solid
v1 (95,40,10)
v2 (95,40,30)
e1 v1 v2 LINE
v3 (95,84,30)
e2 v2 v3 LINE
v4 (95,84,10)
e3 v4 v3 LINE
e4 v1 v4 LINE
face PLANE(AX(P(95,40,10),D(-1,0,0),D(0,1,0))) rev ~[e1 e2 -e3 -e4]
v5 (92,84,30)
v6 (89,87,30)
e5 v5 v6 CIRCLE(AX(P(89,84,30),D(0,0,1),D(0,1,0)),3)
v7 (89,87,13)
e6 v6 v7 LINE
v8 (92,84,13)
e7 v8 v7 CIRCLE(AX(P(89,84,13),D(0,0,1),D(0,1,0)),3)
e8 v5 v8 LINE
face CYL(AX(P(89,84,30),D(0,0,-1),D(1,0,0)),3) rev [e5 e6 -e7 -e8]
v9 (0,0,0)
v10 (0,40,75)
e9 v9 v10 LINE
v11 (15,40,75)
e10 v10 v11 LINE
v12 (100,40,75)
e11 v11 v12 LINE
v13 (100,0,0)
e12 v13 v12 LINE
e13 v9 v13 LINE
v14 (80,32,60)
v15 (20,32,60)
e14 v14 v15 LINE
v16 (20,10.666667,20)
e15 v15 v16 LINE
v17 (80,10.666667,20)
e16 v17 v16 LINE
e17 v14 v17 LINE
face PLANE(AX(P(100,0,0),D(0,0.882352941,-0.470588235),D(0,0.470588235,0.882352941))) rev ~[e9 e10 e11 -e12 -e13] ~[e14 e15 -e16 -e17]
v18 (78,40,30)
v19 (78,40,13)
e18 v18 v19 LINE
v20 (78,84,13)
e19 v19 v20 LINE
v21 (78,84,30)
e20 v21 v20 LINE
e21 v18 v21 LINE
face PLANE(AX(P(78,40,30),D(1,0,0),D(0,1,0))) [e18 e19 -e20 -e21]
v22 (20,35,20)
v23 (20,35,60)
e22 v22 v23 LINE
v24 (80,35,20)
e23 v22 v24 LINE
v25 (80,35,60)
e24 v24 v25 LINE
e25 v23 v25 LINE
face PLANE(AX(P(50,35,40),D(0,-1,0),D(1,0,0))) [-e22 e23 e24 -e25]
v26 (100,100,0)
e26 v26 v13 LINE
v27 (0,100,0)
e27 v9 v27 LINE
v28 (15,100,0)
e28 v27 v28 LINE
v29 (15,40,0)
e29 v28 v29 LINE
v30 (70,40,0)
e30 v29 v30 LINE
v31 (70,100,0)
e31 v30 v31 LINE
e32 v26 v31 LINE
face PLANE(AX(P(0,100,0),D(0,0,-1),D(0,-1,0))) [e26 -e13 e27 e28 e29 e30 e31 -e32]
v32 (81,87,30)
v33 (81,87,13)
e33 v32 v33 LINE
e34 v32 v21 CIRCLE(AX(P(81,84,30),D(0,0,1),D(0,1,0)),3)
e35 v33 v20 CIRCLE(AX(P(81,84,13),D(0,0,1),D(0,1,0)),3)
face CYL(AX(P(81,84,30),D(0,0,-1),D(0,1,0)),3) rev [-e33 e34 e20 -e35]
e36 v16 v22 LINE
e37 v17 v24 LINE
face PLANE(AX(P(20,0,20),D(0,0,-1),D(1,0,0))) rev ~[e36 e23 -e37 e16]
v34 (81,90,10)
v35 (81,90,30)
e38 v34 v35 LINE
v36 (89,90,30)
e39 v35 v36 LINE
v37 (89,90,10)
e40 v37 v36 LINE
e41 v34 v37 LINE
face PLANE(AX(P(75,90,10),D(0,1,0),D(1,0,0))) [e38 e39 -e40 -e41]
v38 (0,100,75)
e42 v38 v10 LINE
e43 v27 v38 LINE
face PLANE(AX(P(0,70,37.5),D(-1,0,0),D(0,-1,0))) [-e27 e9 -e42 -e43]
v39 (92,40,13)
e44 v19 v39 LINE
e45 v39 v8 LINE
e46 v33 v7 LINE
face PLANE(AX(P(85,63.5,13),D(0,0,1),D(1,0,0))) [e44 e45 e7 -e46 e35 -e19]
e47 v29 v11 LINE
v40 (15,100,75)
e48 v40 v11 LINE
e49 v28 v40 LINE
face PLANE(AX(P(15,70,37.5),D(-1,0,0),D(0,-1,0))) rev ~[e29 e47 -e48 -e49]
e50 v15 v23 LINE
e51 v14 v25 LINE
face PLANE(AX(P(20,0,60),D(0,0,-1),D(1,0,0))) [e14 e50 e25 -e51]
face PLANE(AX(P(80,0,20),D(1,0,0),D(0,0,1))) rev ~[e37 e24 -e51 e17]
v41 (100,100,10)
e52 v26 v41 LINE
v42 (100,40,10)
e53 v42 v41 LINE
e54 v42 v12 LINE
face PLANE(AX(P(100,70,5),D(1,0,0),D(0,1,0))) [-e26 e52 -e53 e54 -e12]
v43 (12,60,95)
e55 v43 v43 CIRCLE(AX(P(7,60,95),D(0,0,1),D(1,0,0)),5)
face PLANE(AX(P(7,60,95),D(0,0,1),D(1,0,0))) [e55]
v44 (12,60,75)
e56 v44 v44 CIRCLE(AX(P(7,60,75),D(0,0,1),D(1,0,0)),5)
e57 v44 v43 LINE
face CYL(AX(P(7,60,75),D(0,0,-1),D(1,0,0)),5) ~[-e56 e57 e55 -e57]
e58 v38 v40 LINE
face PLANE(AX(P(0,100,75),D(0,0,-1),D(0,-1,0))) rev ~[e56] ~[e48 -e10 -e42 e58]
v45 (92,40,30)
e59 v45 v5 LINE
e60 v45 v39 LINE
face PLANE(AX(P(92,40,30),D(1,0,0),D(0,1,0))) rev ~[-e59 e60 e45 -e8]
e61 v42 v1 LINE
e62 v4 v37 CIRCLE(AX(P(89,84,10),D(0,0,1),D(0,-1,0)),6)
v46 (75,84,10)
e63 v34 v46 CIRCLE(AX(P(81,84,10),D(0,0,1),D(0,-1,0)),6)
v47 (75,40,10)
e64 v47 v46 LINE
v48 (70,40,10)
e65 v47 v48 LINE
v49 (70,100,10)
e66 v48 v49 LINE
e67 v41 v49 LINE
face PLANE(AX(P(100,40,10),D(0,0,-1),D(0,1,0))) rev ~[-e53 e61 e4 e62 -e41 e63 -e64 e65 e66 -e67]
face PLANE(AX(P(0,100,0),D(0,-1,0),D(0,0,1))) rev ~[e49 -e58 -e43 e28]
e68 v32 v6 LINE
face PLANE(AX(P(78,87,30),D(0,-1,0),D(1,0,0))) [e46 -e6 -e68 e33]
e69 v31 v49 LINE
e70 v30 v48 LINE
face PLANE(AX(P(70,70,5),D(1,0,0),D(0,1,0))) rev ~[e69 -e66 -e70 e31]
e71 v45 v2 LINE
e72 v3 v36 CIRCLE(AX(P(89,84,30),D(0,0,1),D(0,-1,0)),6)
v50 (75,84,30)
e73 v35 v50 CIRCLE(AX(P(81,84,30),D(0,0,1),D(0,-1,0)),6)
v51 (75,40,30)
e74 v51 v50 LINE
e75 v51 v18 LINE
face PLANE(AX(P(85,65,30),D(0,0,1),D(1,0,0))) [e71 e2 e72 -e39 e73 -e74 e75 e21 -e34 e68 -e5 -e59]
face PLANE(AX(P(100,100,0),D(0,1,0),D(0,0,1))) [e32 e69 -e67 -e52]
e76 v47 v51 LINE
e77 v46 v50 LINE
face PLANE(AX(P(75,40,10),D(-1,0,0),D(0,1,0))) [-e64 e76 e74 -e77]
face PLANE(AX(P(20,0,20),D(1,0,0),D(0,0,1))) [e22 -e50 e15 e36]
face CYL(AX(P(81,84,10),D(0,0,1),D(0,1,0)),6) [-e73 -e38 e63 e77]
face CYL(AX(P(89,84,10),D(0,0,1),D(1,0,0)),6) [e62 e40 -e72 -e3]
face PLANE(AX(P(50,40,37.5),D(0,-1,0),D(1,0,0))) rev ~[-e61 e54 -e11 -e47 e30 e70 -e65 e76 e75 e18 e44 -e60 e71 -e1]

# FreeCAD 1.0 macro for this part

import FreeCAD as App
import Part
import Sketcher

V = App.Vector
Q = App.Units.Quantity


def edges_at(feature, points):
    """Names of the edges that pass closest to the given points."""
    edges = feature.Shape.Edges
    near = lambda p: min(range(len(edges)), key=lambda i: edges[i].distToShape(Part.Vertex(*p))[0])
    return sorted({f"Edge{near(p) + 1}" for p in points})

doc = App.newDocument("Part")
body = doc.addObject("PartDesign::Body", "Body")

sketch1 = body.newObject("Sketcher::SketchObject", "Sketch")
sketch1.AttachmentSupport = (doc.getObject("XZ_Plane"), [""])
sketch1.MapMode = "FlatFace"
sketch1.addGeometry([
    Part.LineSegment(V(0, 75, 0), V(0, 0, 0)),
    Part.LineSegment(V(0, 0, 0), V(100, 0, 0)),
    Part.LineSegment(V(100, 0, 0), V(100, 75, 0)),
    Part.LineSegment(V(100, 75, 0), V(0, 75, 0)),
], False)
sketch1.addConstraint([
    Sketcher.Constraint("Coincident", 0, 2, 1, 1),
    Sketcher.Constraint("Coincident", 1, 2, 2, 1),
    Sketcher.Constraint("Coincident", 2, 2, 3, 1),
    Sketcher.Constraint("Coincident", 3, 2, 0, 1),
    Sketcher.Constraint("Vertical", 0),
    Sketcher.Constraint("Horizontal", 1),
    Sketcher.Constraint("Vertical", 2),
    Sketcher.Constraint("Horizontal", 3),
    Sketcher.Constraint("Coincident", 0, 2, -1, 1),
    Sketcher.Constraint("DistanceX", 1, 1, 1, 2, Q("100 mm")),
    Sketcher.Constraint("DistanceY", 0, 2, 0, 1, Q("75 mm")),
])
pad1 = body.newObject("PartDesign::Pad", "Pad")
pad1.Profile = sketch1
pad1.Length = 40
pad1.Reversed = True

sketch2 = body.newObject("Sketcher::SketchObject", "Sketch001")
sketch2.AttachmentSupport = (doc.getObject("YZ_Plane"), [""])
sketch2.MapMode = "FlatFace"
sketch2.AttachmentOffset = App.Placement(V(0, 0, 100), App.Rotation())
sketch2.addGeometry([
    Part.LineSegment(V(0, 0, 0), V(40, 75, 0)),
    Part.LineSegment(V(40, 75, 0), V(0, 75, 0)),
    Part.LineSegment(V(0, 75, 0), V(0, 0, 0)),
], False)
sketch2.addConstraint([
    Sketcher.Constraint("Coincident", 0, 2, 1, 1),
    Sketcher.Constraint("Coincident", 1, 2, 2, 1),
    Sketcher.Constraint("Coincident", 2, 2, 0, 1),
    Sketcher.Constraint("Horizontal", 1),
    Sketcher.Constraint("Vertical", 2),
    Sketcher.Constraint("Coincident", 2, 2, -1, 1),
    Sketcher.Constraint("DistanceX", 1, 2, 1, 1, Q("40 mm")),
    Sketcher.Constraint("DistanceY", 2, 2, 2, 1, Q("75 mm")),
])
pocket1 = body.newObject("PartDesign::Pocket", "Pocket")
pocket1.Profile = sketch2
pocket1.Type = "ThroughAll"

sketch3 = body.newObject("Sketcher::SketchObject", "Sketch002")
sketch3.AttachmentSupport = (doc.getObject("XZ_Plane"), [""])
sketch3.MapMode = "FlatFace"
sketch3.addGeometry([
    Part.LineSegment(V(20, 60, 0), V(20, 20, 0)),
    Part.LineSegment(V(20, 20, 0), V(80, 20, 0)),
    Part.LineSegment(V(80, 20, 0), V(80, 60, 0)),
    Part.LineSegment(V(80, 60, 0), V(20, 60, 0)),
], False)
sketch3.addConstraint([
    Sketcher.Constraint("Coincident", 0, 2, 1, 1),
    Sketcher.Constraint("Coincident", 1, 2, 2, 1),
    Sketcher.Constraint("Coincident", 2, 2, 3, 1),
    Sketcher.Constraint("Coincident", 3, 2, 0, 1),
    Sketcher.Constraint("Vertical", 0),
    Sketcher.Constraint("Horizontal", 1),
    Sketcher.Constraint("Vertical", 2),
    Sketcher.Constraint("Horizontal", 3),
    Sketcher.Constraint("DistanceX", 1, 1, 1, 2, Q("60 mm")),
    Sketcher.Constraint("DistanceY", 0, 2, 0, 1, Q("40 mm")),
    Sketcher.Constraint("DistanceX", -1, 1, 0, 2, Q("20 mm")),
    Sketcher.Constraint("DistanceY", -1, 1, 0, 2, Q("20 mm")),
])
pocket2 = body.newObject("PartDesign::Pocket", "Pocket001")
pocket2.Profile = sketch3
pocket2.Length = 35

sketch4 = body.newObject("Sketcher::SketchObject", "Sketch003")
sketch4.AttachmentSupport = (doc.getObject("YZ_Plane"), [""])
sketch4.MapMode = "FlatFace"
sketch4.AttachmentOffset = App.Placement(V(0, 0, 100), App.Rotation())
sketch4.addGeometry([
    Part.LineSegment(V(40, 10, 0), V(40, 0, 0)),
    Part.LineSegment(V(40, 0, 0), V(100, 0, 0)),
    Part.LineSegment(V(100, 0, 0), V(100, 10, 0)),
    Part.LineSegment(V(100, 10, 0), V(40, 10, 0)),
], False)
sketch4.addConstraint([
    Sketcher.Constraint("Coincident", 0, 2, 1, 1),
    Sketcher.Constraint("Coincident", 1, 2, 2, 1),
    Sketcher.Constraint("Coincident", 2, 2, 3, 1),
    Sketcher.Constraint("Coincident", 3, 2, 0, 1),
    Sketcher.Constraint("Vertical", 0),
    Sketcher.Constraint("Horizontal", 1),
    Sketcher.Constraint("Vertical", 2),
    Sketcher.Constraint("Horizontal", 3),
    Sketcher.Constraint("PointOnObject", 0, 2, -1),
    Sketcher.Constraint("DistanceX", 1, 1, 1, 2, Q("60 mm")),
    Sketcher.Constraint("DistanceY", 0, 2, 0, 1, Q("10 mm")),
    Sketcher.Constraint("DistanceX", -1, 1, 0, 2, Q("40 mm")),
])
pad2 = body.newObject("PartDesign::Pad", "Pad001")
pad2.Profile = sketch4
pad2.Length = 30
pad2.Reversed = True

sketch5 = body.newObject("Sketcher::SketchObject", "Sketch004")
sketch5.AttachmentSupport = (doc.getObject("XY_Plane"), [""])
sketch5.MapMode = "FlatFace"
sketch5.AttachmentOffset = App.Placement(V(0, 0, 10), App.Rotation())
sketch5.addGeometry([
    Part.LineSegment(V(75, 90, 0), V(75, 40, 0)),
    Part.LineSegment(V(75, 40, 0), V(95, 40, 0)),
    Part.LineSegment(V(95, 40, 0), V(95, 90, 0)),
    Part.LineSegment(V(95, 90, 0), V(75, 90, 0)),
], False)
sketch5.addConstraint([
    Sketcher.Constraint("Coincident", 0, 2, 1, 1),
    Sketcher.Constraint("Coincident", 1, 2, 2, 1),
    Sketcher.Constraint("Coincident", 2, 2, 3, 1),
    Sketcher.Constraint("Coincident", 3, 2, 0, 1),
    Sketcher.Constraint("Vertical", 0),
    Sketcher.Constraint("Horizontal", 1),
    Sketcher.Constraint("Vertical", 2),
    Sketcher.Constraint("Horizontal", 3),
    Sketcher.Constraint("DistanceX", 1, 1, 1, 2, Q("20 mm")),
    Sketcher.Constraint("DistanceY", 0, 2, 0, 1, Q("50 mm")),
    Sketcher.Constraint("DistanceX", -1, 1, 0, 2, Q("75 mm")),
    Sketcher.Constraint("DistanceY", -1, 1, 0, 2, Q("40 mm")),
])
pad3 = body.newObject("PartDesign::Pad", "Pad002")
pad3.Profile = sketch5
pad3.Length = 20

sketch6 = body.newObject("Sketcher::SketchObject", "Sketch005")
sketch6.AttachmentSupport = (doc.getObject("XY_Plane"), [""])
sketch6.MapMode = "FlatFace"
sketch6.AttachmentOffset = App.Placement(V(0, 0, 30), App.Rotation())
sketch6.addGeometry([
    Part.LineSegment(V(78, 87, 0), V(78, 40, 0)),
    Part.LineSegment(V(78, 40, 0), V(92, 40, 0)),
    Part.LineSegment(V(92, 40, 0), V(92, 87, 0)),
    Part.LineSegment(V(92, 87, 0), V(78, 87, 0)),
], False)
sketch6.addConstraint([
    Sketcher.Constraint("Coincident", 0, 2, 1, 1),
    Sketcher.Constraint("Coincident", 1, 2, 2, 1),
    Sketcher.Constraint("Coincident", 2, 2, 3, 1),
    Sketcher.Constraint("Coincident", 3, 2, 0, 1),
    Sketcher.Constraint("Vertical", 0),
    Sketcher.Constraint("Horizontal", 1),
    Sketcher.Constraint("Vertical", 2),
    Sketcher.Constraint("Horizontal", 3),
    Sketcher.Constraint("DistanceX", 1, 1, 1, 2, Q("14 mm")),
    Sketcher.Constraint("DistanceY", 0, 2, 0, 1, Q("47 mm")),
    Sketcher.Constraint("DistanceX", -1, 1, 0, 2, Q("78 mm")),
    Sketcher.Constraint("DistanceY", -1, 1, 0, 2, Q("40 mm")),
])
pocket3 = body.newObject("PartDesign::Pocket", "Pocket002")
pocket3.Profile = sketch6
pocket3.Length = 17
doc.recompute()

fillet = body.newObject("PartDesign::Fillet", "Fillet")
fillet.Base = (pocket3, edges_at(pocket3, [(78, 87, 21.5), (92, 87, 21.5)]))
fillet.Radius = 3
doc.recompute()

fillet2 = body.newObject("PartDesign::Fillet", "Fillet001")
fillet2.Base = (fillet, edges_at(fillet, [(75, 90, 20), (95, 90, 20)]))
fillet2.Radius = 6

sketch7 = body.newObject("Sketcher::SketchObject", "Sketch006")
sketch7.AttachmentSupport = (doc.getObject("YZ_Plane"), [""])
sketch7.MapMode = "FlatFace"
sketch7.addGeometry([
    Part.LineSegment(V(100, 75, 0), V(100, 0, 0)),
    Part.LineSegment(V(100, 0, 0), V(40, 0, 0)),
    Part.LineSegment(V(40, 0, 0), V(40, 75, 0)),
    Part.LineSegment(V(40, 75, 0), V(100, 75, 0)),
], False)
sketch7.addConstraint([
    Sketcher.Constraint("Coincident", 0, 2, 1, 1),
    Sketcher.Constraint("Coincident", 1, 2, 2, 1),
    Sketcher.Constraint("Coincident", 2, 2, 3, 1),
    Sketcher.Constraint("Coincident", 3, 2, 0, 1),
    Sketcher.Constraint("Vertical", 0),
    Sketcher.Constraint("Horizontal", 1),
    Sketcher.Constraint("Vertical", 2),
    Sketcher.Constraint("Horizontal", 3),
    Sketcher.Constraint("PointOnObject", 0, 2, -1),
    Sketcher.Constraint("DistanceX", 1, 2, 1, 1, Q("60 mm")),
    Sketcher.Constraint("DistanceY", 0, 2, 0, 1, Q("75 mm")),
    Sketcher.Constraint("DistanceX", -1, 1, 0, 2, Q("100 mm")),
])
pad4 = body.newObject("PartDesign::Pad", "Pad003")
pad4.Profile = sketch7
pad4.Length = 15

sketch8 = body.newObject("Sketcher::SketchObject", "Sketch007")
sketch8.AttachmentSupport = (doc.getObject("XY_Plane"), [""])
sketch8.MapMode = "FlatFace"
sketch8.AttachmentOffset = App.Placement(V(0, 0, 75), App.Rotation())
sketch8.addGeometry(Part.Circle(V(7, 60, 0), V(0, 0, 1), 5), False)
sketch8.addConstraint([
    Sketcher.Constraint("Diameter", 0, Q("10 mm")),
    Sketcher.Constraint("DistanceX", -1, 1, 0, 3, Q("7 mm")),
    Sketcher.Constraint("DistanceY", -1, 1, 0, 3, Q("60 mm")),
])
pad5 = body.newObject("PartDesign::Pad", "Pad004")
pad5.Profile = sketch8
pad5.Length = 20

doc.recompute()
